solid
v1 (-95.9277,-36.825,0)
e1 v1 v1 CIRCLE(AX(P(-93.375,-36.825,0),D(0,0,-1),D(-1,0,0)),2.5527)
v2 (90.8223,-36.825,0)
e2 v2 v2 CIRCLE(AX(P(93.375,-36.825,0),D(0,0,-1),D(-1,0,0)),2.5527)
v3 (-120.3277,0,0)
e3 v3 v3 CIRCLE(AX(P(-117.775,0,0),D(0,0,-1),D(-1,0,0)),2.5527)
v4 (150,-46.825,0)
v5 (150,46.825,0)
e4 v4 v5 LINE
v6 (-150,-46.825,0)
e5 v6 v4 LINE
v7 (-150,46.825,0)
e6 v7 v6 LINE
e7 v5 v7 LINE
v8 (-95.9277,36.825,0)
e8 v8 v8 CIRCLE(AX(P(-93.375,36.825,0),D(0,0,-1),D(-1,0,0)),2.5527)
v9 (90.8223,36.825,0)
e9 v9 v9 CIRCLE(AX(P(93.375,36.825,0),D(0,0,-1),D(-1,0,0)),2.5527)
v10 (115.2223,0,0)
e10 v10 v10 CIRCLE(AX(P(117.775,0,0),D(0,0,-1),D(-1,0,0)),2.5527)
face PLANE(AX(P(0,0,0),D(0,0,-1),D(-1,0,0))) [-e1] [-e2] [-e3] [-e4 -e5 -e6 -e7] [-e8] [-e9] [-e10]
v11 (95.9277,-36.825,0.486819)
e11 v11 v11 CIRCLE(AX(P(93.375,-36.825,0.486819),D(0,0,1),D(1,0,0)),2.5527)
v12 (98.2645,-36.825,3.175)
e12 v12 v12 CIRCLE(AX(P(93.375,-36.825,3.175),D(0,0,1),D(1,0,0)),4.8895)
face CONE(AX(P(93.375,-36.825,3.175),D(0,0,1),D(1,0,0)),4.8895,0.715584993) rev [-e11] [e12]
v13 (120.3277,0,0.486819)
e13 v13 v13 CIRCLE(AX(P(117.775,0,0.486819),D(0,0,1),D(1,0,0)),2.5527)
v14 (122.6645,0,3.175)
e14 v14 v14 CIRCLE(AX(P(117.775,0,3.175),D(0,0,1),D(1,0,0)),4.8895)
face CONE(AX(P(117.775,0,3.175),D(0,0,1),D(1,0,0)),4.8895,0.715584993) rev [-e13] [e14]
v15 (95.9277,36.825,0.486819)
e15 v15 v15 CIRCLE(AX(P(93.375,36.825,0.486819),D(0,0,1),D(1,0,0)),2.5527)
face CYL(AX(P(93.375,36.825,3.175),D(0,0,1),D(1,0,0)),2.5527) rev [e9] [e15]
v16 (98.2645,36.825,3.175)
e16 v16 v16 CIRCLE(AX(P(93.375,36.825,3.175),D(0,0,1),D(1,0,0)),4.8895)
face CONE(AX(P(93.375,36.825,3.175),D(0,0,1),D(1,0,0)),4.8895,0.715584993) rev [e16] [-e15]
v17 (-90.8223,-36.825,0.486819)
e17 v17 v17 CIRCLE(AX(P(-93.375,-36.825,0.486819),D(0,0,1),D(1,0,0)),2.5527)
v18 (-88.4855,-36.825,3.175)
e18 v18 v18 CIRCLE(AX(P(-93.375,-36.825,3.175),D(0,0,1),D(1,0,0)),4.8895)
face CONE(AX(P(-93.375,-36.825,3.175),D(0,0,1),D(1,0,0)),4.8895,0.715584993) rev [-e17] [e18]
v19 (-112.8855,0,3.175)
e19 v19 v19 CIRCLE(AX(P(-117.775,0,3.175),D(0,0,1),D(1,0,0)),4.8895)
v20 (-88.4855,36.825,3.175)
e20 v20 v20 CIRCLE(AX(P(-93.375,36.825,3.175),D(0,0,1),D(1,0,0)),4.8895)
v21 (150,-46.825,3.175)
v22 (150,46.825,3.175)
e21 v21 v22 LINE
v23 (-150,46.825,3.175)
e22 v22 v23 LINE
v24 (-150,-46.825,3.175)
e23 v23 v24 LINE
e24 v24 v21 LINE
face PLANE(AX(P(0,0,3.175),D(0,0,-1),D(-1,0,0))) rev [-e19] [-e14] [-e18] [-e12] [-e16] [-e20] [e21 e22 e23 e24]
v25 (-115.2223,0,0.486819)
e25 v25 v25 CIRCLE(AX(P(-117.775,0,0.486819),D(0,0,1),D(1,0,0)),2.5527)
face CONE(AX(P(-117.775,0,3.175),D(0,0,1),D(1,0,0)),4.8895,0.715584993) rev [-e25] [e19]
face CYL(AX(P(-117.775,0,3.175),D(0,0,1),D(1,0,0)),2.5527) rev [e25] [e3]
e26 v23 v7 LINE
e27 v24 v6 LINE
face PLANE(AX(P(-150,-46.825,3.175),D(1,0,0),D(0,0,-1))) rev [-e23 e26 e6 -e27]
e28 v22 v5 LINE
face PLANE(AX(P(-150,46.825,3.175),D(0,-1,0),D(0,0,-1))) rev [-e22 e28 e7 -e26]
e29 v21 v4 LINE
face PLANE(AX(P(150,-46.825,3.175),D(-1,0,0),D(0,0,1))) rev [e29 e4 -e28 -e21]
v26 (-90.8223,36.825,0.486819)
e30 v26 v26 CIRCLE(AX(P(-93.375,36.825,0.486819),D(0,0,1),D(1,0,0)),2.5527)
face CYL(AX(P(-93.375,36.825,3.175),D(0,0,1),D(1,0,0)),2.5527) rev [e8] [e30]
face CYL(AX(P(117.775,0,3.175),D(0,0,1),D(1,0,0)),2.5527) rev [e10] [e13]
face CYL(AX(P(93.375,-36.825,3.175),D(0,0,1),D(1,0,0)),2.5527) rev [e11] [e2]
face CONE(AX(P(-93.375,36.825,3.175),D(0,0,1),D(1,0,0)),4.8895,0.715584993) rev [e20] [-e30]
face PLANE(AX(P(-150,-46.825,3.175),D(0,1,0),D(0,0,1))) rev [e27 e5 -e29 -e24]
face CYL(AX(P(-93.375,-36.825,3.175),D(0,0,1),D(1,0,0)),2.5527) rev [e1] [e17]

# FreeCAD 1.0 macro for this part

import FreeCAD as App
import Part
import Sketcher
from FreeCAD import Vector
Q = App.Units.Quantity


def add_polygon(sketch, points):
    """Adds a closed chain of lines whose ends are joined by coincident constraints."""
    first, n = sketch.GeometryCount, len(points)
    for a, b in zip(points, points[1:] + points[:1]):
        sketch.addGeometry(Part.LineSegment(App.Vector(*a, 0), App.Vector(*b, 0)), False)
    for i in range(n):
        sketch.addConstraint(Sketcher.Constraint("Coincident", first + i, 2, first + (i + 1) % n, 1))

doc = App.newDocument("Part")
params = doc.addObject("Spreadsheet::Sheet", "Params")
for row, (alias, value) in enumerate([
    ("pad1_length", "0.125 in"),
    ("sketch2_diameter", "0.201 in"),
    ("hole_diameter", "0.201 in"),
    ("hole_depth", "0.19 in"),
    ("hole_csink_diameter", "0.385 in"),
    ("sketch3_diameter", "0.201 in"),
    ("hole2_diameter", "0.201 in"),
    ("hole2_depth", "0.19 in"),
    ("hole2_csink_diameter", "0.385 in"),
], start=1):
    params.set(f"A{row}", alias)
    params.set(f"B{row}", "=" + value)
    params.setAlias(f"B{row}", alias)

body = doc.addObject("PartDesign::Body", "Body")

# Sketch on XY plane
sketch1 = body.newObject("Sketcher::SketchObject", "Sketch")
sketch1.AttachmentSupport = (doc.getObject("XY_Plane"), [""])
sketch1.MapMode = "FlatFace"
add_polygon(sketch1, [(-150, 47), (-150, -47), (150, -47), (150, 47)])  # lines 0-3
sketch1.addConstraint([
    Sketcher.Constraint("Vertical", 0),
    Sketcher.Constraint("Horizontal", 1),
    Sketcher.Constraint("Vertical", 2),
    Sketcher.Constraint("Horizontal", 3),
    Sketcher.Constraint("Symmetric", 0, 2, 2, 2, -1, 1),
    Sketcher.Constraint("DistanceX", 1, 1, 1, 2, Q("300 mm")),
    Sketcher.Constraint("DistanceY", 0, 2, 0, 1, Q("93.65 mm")),
])
pad1 = body.newObject("PartDesign::Pad", "Pad")
pad1.Profile = sketch1
pad1.setExpression("Length", "Params.pad1_length")

# Sketch on XY plane
sketch2 = body.newObject("Sketcher::SketchObject", "Sketch001")
sketch2.AttachmentSupport = (doc.getObject("XY_Plane"), [""])
sketch2.MapMode = "FlatFace"
sketch2.AttachmentOffset = App.Placement(Vector(0, 0, 0.125 * 25.4), App.Rotation())
sketch2.addGeometry([
    Part.Circle(Vector(-93.4, 36.8, 0), Vector(0, 0, 1), 2.6),
    Part.Circle(Vector(93.4, 36.8, 0), Vector(0, 0, 1), 2.6),
    Part.Circle(Vector(93.4, -36.8, 0), Vector(0, 0, 1), 2.6),
    Part.Circle(Vector(-93.4, -36.8, 0), Vector(0, 0, 1), 2.6),
], False)
sketch2.addConstraint([
    Sketcher.Constraint("Equal", 0, 1),
    Sketcher.Constraint("Equal", 1, 2),
    Sketcher.Constraint("Equal", 2, 3),
    Sketcher.Constraint("Symmetric", 0, 3, 2, 3, -1, 1),
    Sketcher.Constraint("Symmetric", 1, 3, 3, 3, -1, 1),
    Sketcher.Constraint("Symmetric", 0, 3, 1, 3, -2),
    Sketcher.Constraint("Diameter", 0, Q("0.201 in")),
    Sketcher.Constraint("DistanceX", 0, 3, -1, 1, Q("93.375 mm")),
    Sketcher.Constraint("DistanceY", -1, 1, 0, 3, Q("36.825 mm")),
])
sketch2.setExpression("Constraints[6]", "Params.sketch2_diameter")
doc.recompute()
hole = body.newObject("PartDesign::Hole", "Hole")
hole.Profile = sketch2
hole.ThreadType = "None"
hole.setExpression("Diameter", "Params.hole_diameter")
hole.DepthType = "Dimension"
hole.setExpression("Depth", "Params.hole_depth")
hole.DrillPoint = "Angled"
hole.DrillPointAngle = 118
hole.HoleCutType = "Countersink"
hole.setExpression("HoleCutDiameter", "Params.hole_csink_diameter")
hole.HoleCutCountersinkAngle = 82

# Sketch on XY plane
sketch3 = body.newObject("Sketcher::SketchObject", "Sketch002")
sketch3.AttachmentSupport = (doc.getObject("XY_Plane"), [""])
sketch3.MapMode = "FlatFace"
sketch3.AttachmentOffset = App.Placement(Vector(0, 0, 0.125 * 25.4), App.Rotation())
sketch3.addGeometry([
    Part.Circle(Vector(-117.8, 0, 0), Vector(0, 0, 1), 2.6),
    Part.Circle(Vector(117.8, 0, 0), Vector(0, 0, 1), 2.6),
], False)
sketch3.addConstraint([
    Sketcher.Constraint("Equal", 0, 1),
    Sketcher.Constraint("Symmetric", 0, 3, 1, 3, -1, 1),
    Sketcher.Constraint("PointOnObject", 0, 3, -1),
    Sketcher.Constraint("Diameter", 0, Q("0.201 in")),
    Sketcher.Constraint("DistanceX", 0, 3, -1, 1, Q("117.775 mm")),
])
sketch3.setExpression("Constraints[3]", "Params.sketch3_diameter")
doc.recompute()
hole2 = body.newObject("PartDesign::Hole", "Hole001")
hole2.Profile = sketch3
hole2.ThreadType = "None"
hole2.setExpression("Diameter", "Params.hole2_diameter")
hole2.DepthType = "Dimension"
hole2.setExpression("Depth", "Params.hole2_depth")
hole2.DrillPoint = "Angled"
hole2.DrillPointAngle = 118
hole2.HoleCutType = "Countersink"
hole2.setExpression("HoleCutDiameter", "Params.hole2_csink_diameter")
hole2.HoleCutCountersinkAngle = 82

doc.recompute()
